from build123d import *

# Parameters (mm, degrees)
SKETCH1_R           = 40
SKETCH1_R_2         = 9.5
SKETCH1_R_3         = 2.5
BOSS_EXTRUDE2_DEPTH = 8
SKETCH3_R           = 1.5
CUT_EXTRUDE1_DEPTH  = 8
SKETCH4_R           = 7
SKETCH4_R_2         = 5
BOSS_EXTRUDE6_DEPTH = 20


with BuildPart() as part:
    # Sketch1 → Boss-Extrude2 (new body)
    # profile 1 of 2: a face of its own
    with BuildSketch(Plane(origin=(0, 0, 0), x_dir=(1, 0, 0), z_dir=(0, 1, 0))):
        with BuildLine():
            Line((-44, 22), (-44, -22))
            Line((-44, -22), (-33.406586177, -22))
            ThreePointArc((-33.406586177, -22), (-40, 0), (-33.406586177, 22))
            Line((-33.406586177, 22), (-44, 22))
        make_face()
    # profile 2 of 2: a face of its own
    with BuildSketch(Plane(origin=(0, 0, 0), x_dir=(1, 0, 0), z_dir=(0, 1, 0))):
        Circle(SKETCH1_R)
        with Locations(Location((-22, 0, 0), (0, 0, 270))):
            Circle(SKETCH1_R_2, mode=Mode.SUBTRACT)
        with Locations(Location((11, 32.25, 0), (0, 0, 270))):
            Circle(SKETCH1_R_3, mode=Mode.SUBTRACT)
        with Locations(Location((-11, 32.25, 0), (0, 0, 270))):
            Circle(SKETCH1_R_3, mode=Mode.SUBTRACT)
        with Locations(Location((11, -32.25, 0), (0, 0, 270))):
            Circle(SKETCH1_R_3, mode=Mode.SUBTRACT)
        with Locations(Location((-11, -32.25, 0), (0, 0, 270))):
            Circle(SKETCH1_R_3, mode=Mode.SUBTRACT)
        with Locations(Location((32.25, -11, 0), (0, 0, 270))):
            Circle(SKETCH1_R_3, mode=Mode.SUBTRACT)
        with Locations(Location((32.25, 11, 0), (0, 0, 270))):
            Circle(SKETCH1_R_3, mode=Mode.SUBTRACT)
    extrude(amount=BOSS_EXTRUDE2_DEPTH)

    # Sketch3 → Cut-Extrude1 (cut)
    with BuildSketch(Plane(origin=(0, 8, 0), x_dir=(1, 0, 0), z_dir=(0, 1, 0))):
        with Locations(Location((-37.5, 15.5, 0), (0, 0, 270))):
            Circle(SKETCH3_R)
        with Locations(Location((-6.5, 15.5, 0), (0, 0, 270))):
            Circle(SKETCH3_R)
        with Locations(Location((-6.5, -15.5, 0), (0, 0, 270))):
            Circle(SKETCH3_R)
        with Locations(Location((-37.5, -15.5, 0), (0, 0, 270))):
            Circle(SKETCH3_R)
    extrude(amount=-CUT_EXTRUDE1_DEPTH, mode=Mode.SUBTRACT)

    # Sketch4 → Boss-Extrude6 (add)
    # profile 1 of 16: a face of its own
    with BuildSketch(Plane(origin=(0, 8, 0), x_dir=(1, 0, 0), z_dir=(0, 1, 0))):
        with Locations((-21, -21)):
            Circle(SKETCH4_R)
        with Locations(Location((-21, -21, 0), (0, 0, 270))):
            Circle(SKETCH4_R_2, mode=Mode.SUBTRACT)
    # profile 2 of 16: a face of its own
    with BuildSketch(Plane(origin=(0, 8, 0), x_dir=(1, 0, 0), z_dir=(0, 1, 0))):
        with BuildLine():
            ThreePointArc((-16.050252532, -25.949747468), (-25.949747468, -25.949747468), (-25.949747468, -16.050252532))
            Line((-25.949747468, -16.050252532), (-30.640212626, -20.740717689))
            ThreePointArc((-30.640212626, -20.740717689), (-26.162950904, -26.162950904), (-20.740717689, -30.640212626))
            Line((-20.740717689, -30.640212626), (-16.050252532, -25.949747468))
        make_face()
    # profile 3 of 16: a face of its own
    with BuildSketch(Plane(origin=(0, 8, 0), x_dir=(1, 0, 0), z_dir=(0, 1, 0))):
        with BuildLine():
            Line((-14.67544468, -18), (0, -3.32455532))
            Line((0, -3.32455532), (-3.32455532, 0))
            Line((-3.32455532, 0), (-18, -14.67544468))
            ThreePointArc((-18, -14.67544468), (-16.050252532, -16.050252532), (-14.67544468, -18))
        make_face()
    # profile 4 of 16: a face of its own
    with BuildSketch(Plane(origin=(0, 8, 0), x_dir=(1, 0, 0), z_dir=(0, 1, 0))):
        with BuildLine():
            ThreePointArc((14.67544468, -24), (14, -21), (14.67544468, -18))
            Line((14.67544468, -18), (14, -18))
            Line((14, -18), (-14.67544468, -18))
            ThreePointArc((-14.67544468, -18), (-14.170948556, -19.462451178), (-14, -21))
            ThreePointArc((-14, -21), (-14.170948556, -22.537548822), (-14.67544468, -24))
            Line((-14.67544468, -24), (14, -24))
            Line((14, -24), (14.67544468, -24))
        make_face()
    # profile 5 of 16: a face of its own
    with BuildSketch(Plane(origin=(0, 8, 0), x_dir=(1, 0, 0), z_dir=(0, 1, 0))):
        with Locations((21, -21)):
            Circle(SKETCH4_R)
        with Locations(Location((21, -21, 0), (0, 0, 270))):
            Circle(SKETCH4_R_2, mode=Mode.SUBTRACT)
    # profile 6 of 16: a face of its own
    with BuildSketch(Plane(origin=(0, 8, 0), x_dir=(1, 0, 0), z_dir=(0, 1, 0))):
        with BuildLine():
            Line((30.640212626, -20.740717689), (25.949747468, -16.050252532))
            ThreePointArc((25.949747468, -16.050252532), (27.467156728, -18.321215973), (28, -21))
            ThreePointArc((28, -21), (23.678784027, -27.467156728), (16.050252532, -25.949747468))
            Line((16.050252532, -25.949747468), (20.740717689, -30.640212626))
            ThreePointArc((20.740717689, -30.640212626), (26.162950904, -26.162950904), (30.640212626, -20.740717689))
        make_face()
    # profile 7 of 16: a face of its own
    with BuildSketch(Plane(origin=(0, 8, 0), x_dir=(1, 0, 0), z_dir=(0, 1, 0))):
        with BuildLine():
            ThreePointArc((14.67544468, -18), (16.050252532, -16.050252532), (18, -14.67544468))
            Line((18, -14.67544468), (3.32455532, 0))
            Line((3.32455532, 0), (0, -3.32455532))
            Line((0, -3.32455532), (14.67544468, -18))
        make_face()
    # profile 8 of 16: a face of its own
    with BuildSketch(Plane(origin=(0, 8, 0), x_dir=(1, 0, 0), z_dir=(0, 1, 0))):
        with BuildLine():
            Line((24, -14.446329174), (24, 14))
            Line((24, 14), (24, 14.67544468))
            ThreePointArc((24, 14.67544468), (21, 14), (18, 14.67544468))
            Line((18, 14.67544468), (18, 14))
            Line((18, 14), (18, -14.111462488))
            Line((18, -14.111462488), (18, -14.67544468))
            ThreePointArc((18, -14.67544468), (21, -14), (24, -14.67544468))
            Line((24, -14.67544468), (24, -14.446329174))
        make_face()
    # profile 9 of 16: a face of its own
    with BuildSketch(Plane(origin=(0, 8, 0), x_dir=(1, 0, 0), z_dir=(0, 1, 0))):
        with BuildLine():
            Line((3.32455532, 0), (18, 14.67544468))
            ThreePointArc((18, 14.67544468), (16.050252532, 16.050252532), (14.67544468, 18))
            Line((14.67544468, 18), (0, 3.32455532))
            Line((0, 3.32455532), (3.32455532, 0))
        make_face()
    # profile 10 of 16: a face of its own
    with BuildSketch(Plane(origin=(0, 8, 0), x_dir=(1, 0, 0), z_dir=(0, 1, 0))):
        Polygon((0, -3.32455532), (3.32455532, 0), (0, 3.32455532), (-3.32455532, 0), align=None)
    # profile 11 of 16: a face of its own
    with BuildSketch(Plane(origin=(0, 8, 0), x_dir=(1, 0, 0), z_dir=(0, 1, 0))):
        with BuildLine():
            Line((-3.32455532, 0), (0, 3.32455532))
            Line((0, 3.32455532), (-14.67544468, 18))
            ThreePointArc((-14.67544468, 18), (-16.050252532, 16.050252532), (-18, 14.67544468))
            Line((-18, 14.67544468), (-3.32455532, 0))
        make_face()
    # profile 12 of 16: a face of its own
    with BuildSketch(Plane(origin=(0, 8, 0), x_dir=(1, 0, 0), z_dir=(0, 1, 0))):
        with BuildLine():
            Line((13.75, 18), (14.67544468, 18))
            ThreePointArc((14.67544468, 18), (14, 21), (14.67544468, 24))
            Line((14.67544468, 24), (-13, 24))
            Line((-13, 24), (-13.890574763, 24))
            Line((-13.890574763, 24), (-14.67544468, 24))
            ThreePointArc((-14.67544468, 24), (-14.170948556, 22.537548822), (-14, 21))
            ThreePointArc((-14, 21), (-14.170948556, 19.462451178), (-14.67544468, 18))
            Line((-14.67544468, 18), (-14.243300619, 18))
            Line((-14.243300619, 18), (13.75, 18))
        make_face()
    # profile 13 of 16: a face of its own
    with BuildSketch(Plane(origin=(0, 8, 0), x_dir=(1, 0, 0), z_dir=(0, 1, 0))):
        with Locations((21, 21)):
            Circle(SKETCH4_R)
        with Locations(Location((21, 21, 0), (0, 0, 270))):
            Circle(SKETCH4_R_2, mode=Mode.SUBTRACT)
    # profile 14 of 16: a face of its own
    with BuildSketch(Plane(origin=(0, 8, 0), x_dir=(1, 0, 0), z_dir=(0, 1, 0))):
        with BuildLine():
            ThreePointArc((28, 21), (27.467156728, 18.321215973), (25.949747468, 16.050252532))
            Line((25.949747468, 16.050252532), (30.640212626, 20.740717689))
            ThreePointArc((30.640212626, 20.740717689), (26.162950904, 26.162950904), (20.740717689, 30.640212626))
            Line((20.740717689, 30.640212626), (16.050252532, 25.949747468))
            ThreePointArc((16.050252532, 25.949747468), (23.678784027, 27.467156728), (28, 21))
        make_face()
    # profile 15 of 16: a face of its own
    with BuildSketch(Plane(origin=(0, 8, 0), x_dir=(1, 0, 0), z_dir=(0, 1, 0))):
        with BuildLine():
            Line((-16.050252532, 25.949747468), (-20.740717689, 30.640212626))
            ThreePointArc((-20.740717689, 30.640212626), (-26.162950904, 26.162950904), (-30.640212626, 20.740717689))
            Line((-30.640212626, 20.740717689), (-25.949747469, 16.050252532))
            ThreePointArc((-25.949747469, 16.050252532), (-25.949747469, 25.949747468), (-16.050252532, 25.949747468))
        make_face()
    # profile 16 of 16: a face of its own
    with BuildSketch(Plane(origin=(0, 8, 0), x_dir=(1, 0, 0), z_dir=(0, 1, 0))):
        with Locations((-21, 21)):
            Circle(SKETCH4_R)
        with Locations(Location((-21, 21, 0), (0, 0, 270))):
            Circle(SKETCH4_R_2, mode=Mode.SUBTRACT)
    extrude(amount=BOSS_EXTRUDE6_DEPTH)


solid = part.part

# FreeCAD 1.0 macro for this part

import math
import FreeCAD as App
import Part
import Sketcher
from FreeCAD import Vector


def add_polygon(sketch, points):
    """Adds a closed chain of lines whose ends are joined by coincident constraints."""
    first, n = sketch.GeometryCount, len(points)
    for a, b in zip(points, points[1:] + points[:1]):
        sketch.addGeometry(Part.LineSegment(App.Vector(*a, 0), App.Vector(*b, 0)), False)
    for i in range(n):
        sketch.addConstraint(Sketcher.Constraint("Coincident", first + i, 2, first + (i + 1) % n, 1))

doc = App.newDocument("Part")
body = doc.addObject("PartDesign::Body", "Body")

# Sketch on XZ plane
sketch1 = doc.addObject("Sketcher::SketchObject", "Sketch")
body.addObject(sketch1)
sketch1.AttachmentSupport = (doc.XZ_Plane, [""])
sketch1.MapMode = "FlatFace"
sketch1.addGeometry([
    Part.LineSegment(Vector(-44, -22, 0), Vector(-44, 22, 0)),  # 0
    Part.LineSegment(Vector(-44, 22, 0), Vector(-33.4, 22, 0)),  # 1
    Part.ArcOfCircle(Part.Circle(Vector(0, 0, 0), Vector(0, 0, 1), 40), math.radians(-147), math.radians(147)),  # 2
    Part.LineSegment(Vector(-33.4, -22, 0), Vector(-44, -22, 0)),  # 3
    Part.Circle(Vector(11, -32.2, 0), Vector(0, 0, 1), 2.5),  # 4
    Part.Circle(Vector(-11, 32.2, 0), Vector(0, 0, 1), 2.5),  # 5
    Part.Circle(Vector(11, 32.2, 0), Vector(0, 0, 1), 2.5),  # 6
    Part.Circle(Vector(32.2, 11, 0), Vector(0, 0, 1), 2.5),  # 7
    Part.Circle(Vector(-22, 0, 0), Vector(0, 0, 1), 9.5),  # 8
    Part.Circle(Vector(-11, -32.2, 0), Vector(0, 0, 1), 2.5),  # 9
    Part.Circle(Vector(32.2, -11, 0), Vector(0, 0, 1), 2.5),  # 10
], False)
sketch1.addConstraint([
    Sketcher.Constraint("Coincident", 0, 2, 1, 1),
    Sketcher.Constraint("Coincident", 1, 2, 2, 2),
    Sketcher.Constraint("Coincident", 2, 1, 3, 1),
    Sketcher.Constraint("Coincident", 3, 2, 0, 1),
    Sketcher.Constraint("Vertical", 0),
    Sketcher.Constraint("Horizontal", 1),
    Sketcher.Constraint("Horizontal", 3),
    Sketcher.Constraint("Coincident", 2, 3, -1, 1),
    Sketcher.Constraint("Equal", 4, 5),
    Sketcher.Constraint("Equal", 5, 6),
    Sketcher.Constraint("Equal", 6, 7),
    Sketcher.Constraint("Equal", 7, 9),
    Sketcher.Constraint("Equal", 9, 10),
    Sketcher.Constraint("Symmetric", 4, 3, 5, 3, -1, 1),
    Sketcher.Constraint("Symmetric", 6, 3, 9, 3, -1, 1),
    Sketcher.Constraint("Symmetric", 5, 3, 6, 3, -2),
    Sketcher.Constraint("Symmetric", 7, 3, 10, 3, -1),
    Sketcher.Constraint("PointOnObject", 8, 3, -1),
    Sketcher.Constraint("Vertical", 1, 2, 2, 1),
    Sketcher.Constraint("Diameter", 4, 5.0),
    Sketcher.Constraint("Diameter", 8, 19.0),
    Sketcher.Constraint("Radius", 2, 40.0),
    Sketcher.Constraint("DistanceY", 0, 1, 0, 2, 44.0),
    Sketcher.Constraint("DistanceX", -1, 1, 4, 3, 11.0),
    Sketcher.Constraint("DistanceY", -1, 1, 7, 3, 11.0),
    Sketcher.Constraint("DistanceX", 8, 3, -1, 1, 22.0),
    Sketcher.Constraint("DistanceX", 0, 2, -1, 1, 44.0),
    Sketcher.Constraint("DistanceY", 4, 3, 5, 3, 64.5),
    Sketcher.Constraint("DistanceX", -1, 1, 7, 3, 32.25),
])
pad1 = doc.addObject("PartDesign::Pad", "Pad")
body.addObject(pad1)
pad1.Profile = sketch1
pad1.Length = 8
pad1.Reversed = True

# Sketch on XZ plane
sketch2 = doc.addObject("Sketcher::SketchObject", "Sketch001")
body.addObject(sketch2)
sketch2.AttachmentSupport = (doc.XZ_Plane, [""])
sketch2.MapMode = "FlatFace"
sketch2.AttachmentOffset = App.Placement(Vector(0, 0, -8), App.Rotation())
sketch2.addGeometry([
    Part.Circle(Vector(-37.5, -15.5, 0), Vector(0, 0, 1), 1.5),
    Part.Circle(Vector(-6.5, -15.5, 0), Vector(0, 0, 1), 1.5),
    Part.Circle(Vector(-6.5, 15.5, 0), Vector(0, 0, 1), 1.5),
    Part.Circle(Vector(-37.5, 15.5, 0), Vector(0, 0, 1), 1.5),
], False)
sketch2.addConstraint([
    Sketcher.Constraint("Equal", 0, 1),
    Sketcher.Constraint("Equal", 1, 2),
    Sketcher.Constraint("Equal", 2, 3),
    Sketcher.Constraint("Symmetric", 1, 3, 2, 3, -1),
    Sketcher.Constraint("Symmetric", 0, 3, 3, 3, -1),
    Sketcher.Constraint("Horizontal", 0, 3, 1, 3),
    Sketcher.Constraint("Diameter", 0, 3.0),
    Sketcher.Constraint("DistanceX", 0, 3, 1, 3, 31.0),
    Sketcher.Constraint("DistanceY", 1, 3, 2, 3, 31.0),
    Sketcher.Constraint("DistanceX", 0, 3, -1, 1, 37.5),
])
pocket1 = doc.addObject("PartDesign::Pocket", "Pocket")
body.addObject(pocket1)
pocket1.Profile = sketch2
pocket1.Length = 8
pocket1.Reversed = True

# Sketch on XZ plane
sketch3 = doc.addObject("Sketcher::SketchObject", "Sketch002")
body.addObject(sketch3)
sketch3.AttachmentSupport = (doc.XZ_Plane, [""])
sketch3.MapMode = "FlatFace"
sketch3.AttachmentOffset = App.Placement(Vector(0, 0, -8), App.Rotation())
sketch3.addGeometry(Part.ArcOfCircle(Part.Circle(Vector(-21, 21, 0), Vector(0, 0, 1), 7), math.radians(-135), math.radians(-65)), False)  # 0
sketch3.addGeometry(Part.LineSegment(Vector(-25.9, 16.1, 0), Vector(-30.6, 20.7, 0)), False)  # 1
sketch3.addGeometry(Part.ArcOfCircle(Part.Circle(Vector(0, 0, 0), Vector(0, 0, 1), 37), math.radians(124), math.radians(146)), False)  # 2
sketch3.addGeometry(Part.LineSegment(Vector(-20.7, 30.6, 0), Vector(-16.1, 25.9, 0)), False)  # 3
sketch3.addGeometry(Part.ArcOfCircle(Part.Circle(Vector(-21, 21, 0), Vector(0, 0, 1), 7), math.radians(25.38), math.radians(45)), False)  # 4
sketch3.addGeometry(Part.LineSegment(Vector(-14.7, 24, 0), Vector(14.7, 24, 0)), False)  # 5
sketch3.addGeometry(Part.ArcOfCircle(Part.Circle(Vector(21, 21, 0), Vector(0, 0, 1), 7), math.radians(135), math.radians(154.62)), False)  # 6
sketch3.addGeometry(Part.LineSegment(Vector(16.1, 25.9, 0), Vector(20.7, 30.6, 0)), False)  # 7
sketch3.addGeometry(Part.ArcOfCircle(Part.Circle(Vector(0, 0, 0), Vector(0, 0, 1), 37), math.radians(34), math.radians(56)), False)  # 8
sketch3.addGeometry(Part.LineSegment(Vector(30.6, 20.7, 0), Vector(25.9, 16.1, 0)), False)  # 9
sketch3.addGeometry(Part.ArcOfCircle(Part.Circle(Vector(21, 21, 0), Vector(0, 0, 1), 7), math.radians(-64.62), math.radians(-45)), False)  # 10
sketch3.addGeometry(Part.LineSegment(Vector(24, 14.7, 0), Vector(24, -14.7, 0)), False)  # 11
sketch3.addGeometry(Part.ArcOfCircle(Part.Circle(Vector(21, -21, 0), Vector(0, 0, 1), 7), math.radians(45), math.radians(64.62)), False)  # 12
sketch3.addGeometry(Part.LineSegment(Vector(25.9, -16.1, 0), Vector(30.6, -20.7, 0)), False)  # 13
sketch3.addGeometry(Part.ArcOfCircle(Part.Circle(Vector(0, 0, 0), Vector(0, 0, 1), 37), math.radians(-56), math.radians(-34)), False)  # 14
sketch3.addGeometry(Part.LineSegment(Vector(20.7, -30.6, 0), Vector(16.1, -25.9, 0)), False)  # 15
sketch3.addGeometry(Part.ArcOfCircle(Part.Circle(Vector(21, -21, 0), Vector(0, 0, 1), 7), math.radians(-154.62), math.radians(-135)), False)  # 16
sketch3.addGeometry(Part.LineSegment(Vector(14.7, -24, 0), Vector(-14.7, -24, 0)), False)  # 17
sketch3.addGeometry(Part.ArcOfCircle(Part.Circle(Vector(-21, -21, 0), Vector(0, 0, 1), 7), math.radians(-45), math.radians(-25.38)), False)  # 18
sketch3.addGeometry(Part.LineSegment(Vector(-16.1, -25.9, 0), Vector(-20.7, -30.6, 0)), False)  # 19
sketch3.addGeometry(Part.ArcOfCircle(Part.Circle(Vector(0, 0, 0), Vector(0, 0, 1), 37), math.radians(-146), math.radians(-124)), False)  # 20
sketch3.addGeometry(Part.LineSegment(Vector(-30.6, -20.7, 0), Vector(-25.9, -16.1, 0)), False)  # 21
sketch3.addGeometry(Part.ArcOfCircle(Part.Circle(Vector(-21, -21, 0), Vector(0, 0, 1), 7), math.radians(65), math.radians(135)), False)  # 22
sketch3.addGeometry(Part.LineSegment(Vector(-18, -14.7, 0), Vector(-3.3, 0, 0)), False)  # 23
sketch3.addGeometry(Part.LineSegment(Vector(-3.3, 0, 0), Vector(-18, 14.7, 0)), False)  # 24
sketch3.addGeometry(Part.Circle(Vector(-21, 21, 0), Vector(0, 0, 1), 5), False)  # 25
add_polygon(sketch3, [(14.7, 18), (-14.7, 18), (0, 3.3)])  # lines 26-28
sketch3.addGeometry(Part.Circle(Vector(21, 21, 0), Vector(0, 0, 1), 5), False)  # 29
add_polygon(sketch3, [(18, -14.7), (18, 14.7), (3.3, 0)])  # lines 30-32
add_polygon(sketch3, [(14.7, -18), (0, -3.3), (-14.7, -18)])  # lines 33-35
sketch3.addGeometry(Part.Circle(Vector(21, -21, 0), Vector(0, 0, 1), 5), False)  # 36
sketch3.addGeometry(Part.Circle(Vector(-21, -21, 0), Vector(0, 0, 1), 5), False)  # 37
sketch3.addConstraint([
    Sketcher.Constraint("Tangent", 0, 1, 1, 1),
    Sketcher.Constraint("Coincident", 1, 2, 2, 2),
    Sketcher.Constraint("Coincident", 2, 1, 3, 1),
    Sketcher.Constraint("Tangent", 3, 2, 4, 2),
    Sketcher.Constraint("Coincident", 4, 1, 5, 1),
    Sketcher.Constraint("Coincident", 5, 2, 6, 2),
    Sketcher.Constraint("Tangent", 6, 1, 7, 1),
    Sketcher.Constraint("Coincident", 7, 2, 8, 2),
    Sketcher.Constraint("Coincident", 8, 1, 9, 1),
    Sketcher.Constraint("Tangent", 9, 2, 10, 2),
    Sketcher.Constraint("Coincident", 10, 1, 11, 1),
    Sketcher.Constraint("Coincident", 11, 2, 12, 2),
    Sketcher.Constraint("Tangent", 12, 1, 13, 1),
    Sketcher.Constraint("Coincident", 13, 2, 14, 2),
    Sketcher.Constraint("Coincident", 14, 1, 15, 1),
    Sketcher.Constraint("Tangent", 15, 2, 16, 2),
    Sketcher.Constraint("Coincident", 16, 1, 17, 1),
    Sketcher.Constraint("Coincident", 17, 2, 18, 2),
    Sketcher.Constraint("Tangent", 18, 1, 19, 1),
    Sketcher.Constraint("Coincident", 19, 2, 20, 2),
    Sketcher.Constraint("Coincident", 20, 1, 21, 1),
    Sketcher.Constraint("Tangent", 21, 2, 22, 2),
    Sketcher.Constraint("Coincident", 22, 1, 23, 1),
    Sketcher.Constraint("Coincident", 23, 2, 24, 1),
    Sketcher.Constraint("Coincident", 24, 2, 0, 2),
    Sketcher.Constraint("Horizontal", 5),
    Sketcher.Constraint("Vertical", 11),
    Sketcher.Constraint("Horizontal", 17),
    Sketcher.Constraint("Horizontal", 26),
    Sketcher.Constraint("Vertical", 30),
    Sketcher.Constraint("Horizontal", 35),
    Sketcher.Constraint("Coincident", 2, 3, -1, 1),
    Sketcher.Constraint("Coincident", 8, 3, -1, 1),
    Sketcher.Constraint("Coincident", 14, 3, -1, 1),
    Sketcher.Constraint("Coincident", 20, 3, -1, 1),
    Sketcher.Constraint("Coincident", 4, 3, 0, 3),
    Sketcher.Constraint("Coincident", 10, 3, 6, 3),
    Sketcher.Constraint("Coincident", 16, 3, 12, 3),
    Sketcher.Constraint("Coincident", 22, 3, 18, 3),
    Sketcher.Constraint("Coincident", 25, 3, 0, 3),
    Sketcher.Constraint("Coincident", 29, 3, 6, 3),
    Sketcher.Constraint("Coincident", 36, 3, 12, 3),
    Sketcher.Constraint("Coincident", 37, 3, 18, 3),
    Sketcher.Constraint("Equal", 0, 4),
    Sketcher.Constraint("Equal", 4, 6),
    Sketcher.Constraint("Equal", 2, 8),
    Sketcher.Constraint("Equal", 6, 10),
    Sketcher.Constraint("Equal", 10, 12),
    Sketcher.Constraint("Equal", 8, 14),
    Sketcher.Constraint("Equal", 12, 16),
    Sketcher.Constraint("Equal", 16, 18),
    Sketcher.Constraint("Equal", 14, 20),
    Sketcher.Constraint("Equal", 18, 22),
    Sketcher.Constraint("Equal", 25, 29),
    Sketcher.Constraint("Equal", 29, 36),
    Sketcher.Constraint("Equal", 36, 37),
    Sketcher.Constraint("Symmetric", 0, 3, 12, 3, -1, 1),
    Sketcher.Constraint("Symmetric", 6, 3, 18, 3, -1, 1),
    Sketcher.Constraint("Symmetric", 22, 1, 30, 2, -1, 1),
    Sketcher.Constraint("Symmetric", 23, 2, 31, 2, -1, 1),
    Sketcher.Constraint("Symmetric", 24, 2, 32, 2, -1, 1),
    Sketcher.Constraint("Symmetric", 27, 2, 33, 2, -1, 1),
    Sketcher.Constraint("Symmetric", 28, 2, 34, 2, -1, 1),
    Sketcher.Constraint("Symmetric", 0, 3, 6, 3, -2),
    Sketcher.Constraint("PointOnObject", 23, 2, -1),
    Sketcher.Constraint("PointOnObject", 27, 2, -2),
    Sketcher.Constraint("Parallel", 1, 3),
    Sketcher.Constraint("Perpendicular", 3, 7),
    Sketcher.Constraint("Parallel", 7, 9),
    Sketcher.Constraint("Perpendicular", 9, 13),
    Sketcher.Constraint("Parallel", 13, 15),
    Sketcher.Constraint("Perpendicular", 15, 19),
    Sketcher.Constraint("Parallel", 19, 21),
    Sketcher.Constraint("Parallel", 21, 23),
    Sketcher.Constraint("Perpendicular", 23, 24),
    Sketcher.Constraint("Parallel", 24, 27),
    Sketcher.Constraint("Perpendicular", 27, 28),
    Sketcher.Constraint("Parallel", 32, 33),
    Sketcher.Constraint("Horizontal", 11, 2, 22, 1),
    Sketcher.Constraint("Vertical", 5, 2, 16, 1),
    Sketcher.Constraint("Vertical", 17, 2, 26, 2),
    Sketcher.Constraint("Equal", 35, 11),
    Sketcher.Constraint("Equal", 1, 3),
    Sketcher.Constraint("Diameter", 25, 10.0),
    Sketcher.Constraint("Radius", 0, 7.0),
    Sketcher.Constraint("Radius", 2, 37.0),
    Sketcher.Constraint("DistanceX", 0, 3, -1, 1, 21.0),
    Sketcher.Constraint("DistanceY", -1, 1, 4, 1, 24.0),
    Sketcher.Constraint("DistanceY", -1, 1, 26, 2, 18.0),
])
pad2 = doc.addObject("PartDesign::Pad", "Pad001")
body.addObject(pad2)
pad2.Profile = sketch3
pad2.Length = 20
pad2.Reversed = True

doc.recompute()
